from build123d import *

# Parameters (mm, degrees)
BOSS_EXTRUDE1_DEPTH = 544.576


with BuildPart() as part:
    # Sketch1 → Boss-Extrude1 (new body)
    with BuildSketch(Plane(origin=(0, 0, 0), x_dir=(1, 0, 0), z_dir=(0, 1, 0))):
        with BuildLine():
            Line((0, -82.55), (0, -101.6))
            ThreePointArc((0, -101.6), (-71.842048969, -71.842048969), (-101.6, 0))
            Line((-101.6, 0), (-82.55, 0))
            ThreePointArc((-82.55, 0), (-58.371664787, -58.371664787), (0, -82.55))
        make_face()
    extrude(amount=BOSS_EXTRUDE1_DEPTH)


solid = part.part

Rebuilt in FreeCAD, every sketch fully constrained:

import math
import FreeCAD as App
import Part
import Sketcher

V = App.Vector
Q = App.Units.Quantity

doc = App.newDocument("Part")
body = doc.addObject("PartDesign::Body", "Body")

# Sketch on XZ plane
sketch1 = doc.addObject("Sketcher::SketchObject", "Sketch")
body.addObject(sketch1)
sketch1.AttachmentSupport = (doc.XZ_Plane, [""])
sketch1.MapMode = "FlatFace"
sketch1.addGeometry([
    Part.LineSegment(V(0, 102, 0), V(0, 83, 0)),
    Part.ArcOfCircle(Part.Circle(V(0, 0, 0), V(0, 0, 1), 83), math.radians(90), math.radians(180)),
    Part.LineSegment(V(-83, 0, 0), V(-102, 0, 0)),
    Part.ArcOfCircle(Part.Circle(V(0, 0, 0), V(0, 0, 1), 102), math.radians(90), math.radians(180)),
], False)
sketch1.addConstraint([
    Sketcher.Constraint("Coincident", 0, 2, 1, 1),
    Sketcher.Constraint("Coincident", 1, 2, 2, 1),
    Sketcher.Constraint("Coincident", 2, 2, 3, 2),
    Sketcher.Constraint("Coincident", 3, 1, 0, 1),
    Sketcher.Constraint("Vertical", 0),
    Sketcher.Constraint("Horizontal", 2),
    Sketcher.Constraint("Coincident", 1, 3, -1, 1),
    Sketcher.Constraint("Coincident", 3, 3, -1, 1),
    Sketcher.Constraint("PointOnObject", 0, 2, -2),
    Sketcher.Constraint("PointOnObject", 1, 2, -1),
    Sketcher.Constraint("Radius", 3, Q("4 in")),
    Sketcher.Constraint("Radius", 1, Q("3.25 in")),
])
pad1 = doc.addObject("PartDesign::Pad", "Pad")
body.addObject(pad1)
pad1.Profile = sketch1
pad1.Length = Q("21.44 in")
pad1.Reversed = True

doc.recompute()
